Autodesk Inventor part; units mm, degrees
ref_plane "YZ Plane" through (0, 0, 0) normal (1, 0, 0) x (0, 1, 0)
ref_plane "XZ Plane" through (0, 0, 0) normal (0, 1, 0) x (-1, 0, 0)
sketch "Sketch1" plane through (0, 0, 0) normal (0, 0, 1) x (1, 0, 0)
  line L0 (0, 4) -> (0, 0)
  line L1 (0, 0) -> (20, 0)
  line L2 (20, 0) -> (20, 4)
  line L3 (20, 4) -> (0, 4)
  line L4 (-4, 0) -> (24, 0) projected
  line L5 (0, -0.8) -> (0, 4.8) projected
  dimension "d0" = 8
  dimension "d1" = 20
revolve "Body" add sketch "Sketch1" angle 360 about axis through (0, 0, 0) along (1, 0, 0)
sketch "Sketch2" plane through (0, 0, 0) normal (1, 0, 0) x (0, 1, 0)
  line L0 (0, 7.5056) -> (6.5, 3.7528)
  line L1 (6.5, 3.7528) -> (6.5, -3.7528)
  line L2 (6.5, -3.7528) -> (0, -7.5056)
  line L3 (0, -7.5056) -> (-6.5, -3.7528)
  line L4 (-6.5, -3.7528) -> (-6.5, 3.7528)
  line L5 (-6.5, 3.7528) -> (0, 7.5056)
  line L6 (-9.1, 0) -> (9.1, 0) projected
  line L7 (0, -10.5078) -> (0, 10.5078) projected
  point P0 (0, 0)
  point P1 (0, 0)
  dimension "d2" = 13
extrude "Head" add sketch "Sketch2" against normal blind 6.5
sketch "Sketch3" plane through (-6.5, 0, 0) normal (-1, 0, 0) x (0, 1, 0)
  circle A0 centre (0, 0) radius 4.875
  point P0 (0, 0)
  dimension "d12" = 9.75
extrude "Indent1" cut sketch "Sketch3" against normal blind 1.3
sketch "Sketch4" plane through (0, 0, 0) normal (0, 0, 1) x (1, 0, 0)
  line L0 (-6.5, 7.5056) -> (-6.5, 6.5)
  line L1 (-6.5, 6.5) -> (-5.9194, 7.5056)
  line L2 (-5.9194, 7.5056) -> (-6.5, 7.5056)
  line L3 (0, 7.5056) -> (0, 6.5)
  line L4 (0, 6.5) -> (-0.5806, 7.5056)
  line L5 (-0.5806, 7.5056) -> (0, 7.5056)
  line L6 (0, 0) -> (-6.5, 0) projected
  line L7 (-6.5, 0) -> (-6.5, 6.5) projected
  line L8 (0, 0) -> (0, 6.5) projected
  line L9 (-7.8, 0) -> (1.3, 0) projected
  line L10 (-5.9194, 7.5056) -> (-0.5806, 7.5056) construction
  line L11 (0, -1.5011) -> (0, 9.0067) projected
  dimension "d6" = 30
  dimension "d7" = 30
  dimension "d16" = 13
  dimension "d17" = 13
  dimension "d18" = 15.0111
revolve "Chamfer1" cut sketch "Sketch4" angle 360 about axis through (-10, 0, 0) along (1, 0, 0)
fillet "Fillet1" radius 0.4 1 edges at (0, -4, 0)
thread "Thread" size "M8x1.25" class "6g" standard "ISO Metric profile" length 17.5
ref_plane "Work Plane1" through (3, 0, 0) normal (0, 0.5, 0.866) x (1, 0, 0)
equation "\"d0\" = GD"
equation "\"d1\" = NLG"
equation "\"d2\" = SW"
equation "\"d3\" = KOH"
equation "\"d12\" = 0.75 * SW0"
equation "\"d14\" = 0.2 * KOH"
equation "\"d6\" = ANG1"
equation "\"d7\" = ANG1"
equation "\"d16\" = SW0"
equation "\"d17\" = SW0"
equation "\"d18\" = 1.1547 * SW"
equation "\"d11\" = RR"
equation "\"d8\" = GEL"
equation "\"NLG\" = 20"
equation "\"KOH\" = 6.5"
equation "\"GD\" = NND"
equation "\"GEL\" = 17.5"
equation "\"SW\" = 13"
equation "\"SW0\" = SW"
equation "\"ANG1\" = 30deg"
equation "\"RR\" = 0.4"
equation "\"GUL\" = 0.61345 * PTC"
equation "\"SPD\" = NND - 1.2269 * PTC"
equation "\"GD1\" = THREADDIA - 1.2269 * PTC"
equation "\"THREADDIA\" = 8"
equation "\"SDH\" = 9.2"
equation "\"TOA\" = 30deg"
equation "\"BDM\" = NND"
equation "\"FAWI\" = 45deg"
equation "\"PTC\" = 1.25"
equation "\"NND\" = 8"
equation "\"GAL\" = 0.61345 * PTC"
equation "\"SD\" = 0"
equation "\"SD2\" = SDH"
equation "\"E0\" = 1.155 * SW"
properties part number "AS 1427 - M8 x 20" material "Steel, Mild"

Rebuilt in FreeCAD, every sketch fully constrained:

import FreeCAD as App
import Part
import Sketcher
Q = App.Units.Quantity


def edges_at(feature, points):
    """Names of the edges that pass closest to the given points."""
    edges = feature.Shape.Edges
    near = lambda p: min(range(len(edges)), key=lambda i: edges[i].distToShape(Part.Vertex(*p))[0])
    return sorted({f"Edge{near(p) + 1}" for p in points})


def add_polygon(sketch, points):
    """Adds a closed chain of lines whose ends are joined by coincident constraints."""
    first, n = sketch.GeometryCount, len(points)
    for a, b in zip(points, points[1:] + points[:1]):
        sketch.addGeometry(Part.LineSegment(App.Vector(*a, 0), App.Vector(*b, 0)), False)
    for i in range(n):
        sketch.addConstraint(Sketcher.Constraint("Coincident", first + i, 2, first + (i + 1) % n, 1))

doc = App.newDocument("Part")
body = doc.addObject("PartDesign::Body", "Body")

sketch1 = body.newObject("Sketcher::SketchObject", "Sketch")
sketch1.AttachmentSupport = (doc.getObject("XY_Plane"), [""])
sketch1.MapMode = "FlatFace"
add_polygon(sketch1, [(20, 4), (0, 4), (0, 0), (20, 0)])
sketch1.addConstraint([
    Sketcher.Constraint("Horizontal", 0),
    Sketcher.Constraint("Vertical", 1),
    Sketcher.Constraint("Horizontal", 2),
    Sketcher.Constraint("Vertical", 3),
    Sketcher.Constraint("Coincident", 1, 2, -1, 1),
    Sketcher.Constraint("DistanceX", 0, 2, 0, 1, 20.0),
    Sketcher.Constraint("DistanceY", 1, 2, 1, 1, 4.0),
])
revolution = body.newObject("PartDesign::Revolution", "Revolution")
revolution.Profile = sketch1
revolution.ReferenceAxis = (sketch1, ["H_Axis"])
revolution.Angle = 360

sketch2 = body.newObject("Sketcher::SketchObject", "Sketch001")
sketch2.AttachmentSupport = (doc.getObject("YZ_Plane"), [""])
sketch2.MapMode = "FlatFace"
add_polygon(sketch2, [(-6.5, 3.7528), (-6.5, -3.7528), (0, -7.5056), (6.5, -3.7528), (6.5, 3.7528), (0, 7.5056)])
sketch2.addConstraint([
    Sketcher.Constraint("Vertical", 0),
    Sketcher.Constraint("Vertical", 3),
    Sketcher.Constraint("Symmetric", 0, 2, 3, 2, -1, 1),
    Sketcher.Constraint("Symmetric", 1, 2, 4, 2, -1, 1),
    Sketcher.Constraint("PointOnObject", 1, 2, -2),
    Sketcher.Constraint("Parallel", 2, 5),
    Sketcher.Constraint("Horizontal", 0, 2, 2, 2),
    Sketcher.Constraint("DistanceX", 0, 2, 2, 2, 13.0),
    Sketcher.Constraint("Angle", 1, Q("-30.0002 deg")),
    Sketcher.Constraint("DistanceY", 0, 2, 0, 1, 7.5056),
])
pad1 = body.newObject("PartDesign::Pad", "Pad")
pad1.Profile = sketch2
pad1.Length = 6.5
pad1.Reversed = True

sketch3 = body.newObject("Sketcher::SketchObject", "Sketch002")
sketch3.AttachmentSupport = (doc.getObject("YZ_Plane"), [""])
sketch3.MapMode = "FlatFace"
sketch3.AttachmentOffset = App.Placement(App.Vector(0, 0, -6.5), App.Rotation())
sketch3.addGeometry(Part.Circle(App.Vector(0, 0, 0), App.Vector(0, 0, 1), 4.875), False)
sketch3.addConstraint([
    Sketcher.Constraint("Coincident", 0, 3, -1, 1),
    Sketcher.Constraint("Diameter", 0, 9.75),
])
pocket1 = body.newObject("PartDesign::Pocket", "Pocket")
pocket1.Profile = sketch3
pocket1.Length = 1.3
pocket1.Reversed = True

sketch4 = body.newObject("Sketcher::SketchObject", "Sketch003")
sketch4.AttachmentSupport = (doc.getObject("XY_Plane"), [""])
sketch4.MapMode = "FlatFace"
add_polygon(sketch4, [(-5.9194, 7.5056), (-6.5, 7.5056), (-6.5, 6.5)])
add_polygon(sketch4, [(-0.5806, 7.5056), (0, 6.5), (0, 7.5056)])
sketch4.addConstraint([
    Sketcher.Constraint("Horizontal", 0),
    Sketcher.Constraint("Vertical", 1),
    Sketcher.Constraint("Vertical", 4),
    Sketcher.Constraint("Horizontal", 5),
    Sketcher.Constraint("PointOnObject", 3, 2, -2),
    Sketcher.Constraint("Horizontal", 1, 2, 3, 2),
    Sketcher.Constraint("Horizontal", 2, 2, 4, 2),
    Sketcher.Constraint("Equal", 0, 5),
    Sketcher.Constraint("Angle", 2, Q("59.9993 deg")),
    Sketcher.Constraint("DistanceX", 0, 2, -1, 1, 6.5),
    Sketcher.Constraint("DistanceY", -1, 1, 1, 2, 6.5),
    Sketcher.Constraint("DistanceX", 0, 2, 0, 1, 0.5806),
])
groove = body.newObject("PartDesign::Groove", "Groove")
groove.Profile = sketch4
groove.ReferenceAxis = (sketch4, ["H_Axis"])
groove.Angle = 360
doc.recompute()

fillet = body.newObject("PartDesign::Fillet", "Fillet")
fillet.Base = (groove, edges_at(groove, [(0, -4, 0)]))
fillet.Radius = 0.4

doc.recompute()
